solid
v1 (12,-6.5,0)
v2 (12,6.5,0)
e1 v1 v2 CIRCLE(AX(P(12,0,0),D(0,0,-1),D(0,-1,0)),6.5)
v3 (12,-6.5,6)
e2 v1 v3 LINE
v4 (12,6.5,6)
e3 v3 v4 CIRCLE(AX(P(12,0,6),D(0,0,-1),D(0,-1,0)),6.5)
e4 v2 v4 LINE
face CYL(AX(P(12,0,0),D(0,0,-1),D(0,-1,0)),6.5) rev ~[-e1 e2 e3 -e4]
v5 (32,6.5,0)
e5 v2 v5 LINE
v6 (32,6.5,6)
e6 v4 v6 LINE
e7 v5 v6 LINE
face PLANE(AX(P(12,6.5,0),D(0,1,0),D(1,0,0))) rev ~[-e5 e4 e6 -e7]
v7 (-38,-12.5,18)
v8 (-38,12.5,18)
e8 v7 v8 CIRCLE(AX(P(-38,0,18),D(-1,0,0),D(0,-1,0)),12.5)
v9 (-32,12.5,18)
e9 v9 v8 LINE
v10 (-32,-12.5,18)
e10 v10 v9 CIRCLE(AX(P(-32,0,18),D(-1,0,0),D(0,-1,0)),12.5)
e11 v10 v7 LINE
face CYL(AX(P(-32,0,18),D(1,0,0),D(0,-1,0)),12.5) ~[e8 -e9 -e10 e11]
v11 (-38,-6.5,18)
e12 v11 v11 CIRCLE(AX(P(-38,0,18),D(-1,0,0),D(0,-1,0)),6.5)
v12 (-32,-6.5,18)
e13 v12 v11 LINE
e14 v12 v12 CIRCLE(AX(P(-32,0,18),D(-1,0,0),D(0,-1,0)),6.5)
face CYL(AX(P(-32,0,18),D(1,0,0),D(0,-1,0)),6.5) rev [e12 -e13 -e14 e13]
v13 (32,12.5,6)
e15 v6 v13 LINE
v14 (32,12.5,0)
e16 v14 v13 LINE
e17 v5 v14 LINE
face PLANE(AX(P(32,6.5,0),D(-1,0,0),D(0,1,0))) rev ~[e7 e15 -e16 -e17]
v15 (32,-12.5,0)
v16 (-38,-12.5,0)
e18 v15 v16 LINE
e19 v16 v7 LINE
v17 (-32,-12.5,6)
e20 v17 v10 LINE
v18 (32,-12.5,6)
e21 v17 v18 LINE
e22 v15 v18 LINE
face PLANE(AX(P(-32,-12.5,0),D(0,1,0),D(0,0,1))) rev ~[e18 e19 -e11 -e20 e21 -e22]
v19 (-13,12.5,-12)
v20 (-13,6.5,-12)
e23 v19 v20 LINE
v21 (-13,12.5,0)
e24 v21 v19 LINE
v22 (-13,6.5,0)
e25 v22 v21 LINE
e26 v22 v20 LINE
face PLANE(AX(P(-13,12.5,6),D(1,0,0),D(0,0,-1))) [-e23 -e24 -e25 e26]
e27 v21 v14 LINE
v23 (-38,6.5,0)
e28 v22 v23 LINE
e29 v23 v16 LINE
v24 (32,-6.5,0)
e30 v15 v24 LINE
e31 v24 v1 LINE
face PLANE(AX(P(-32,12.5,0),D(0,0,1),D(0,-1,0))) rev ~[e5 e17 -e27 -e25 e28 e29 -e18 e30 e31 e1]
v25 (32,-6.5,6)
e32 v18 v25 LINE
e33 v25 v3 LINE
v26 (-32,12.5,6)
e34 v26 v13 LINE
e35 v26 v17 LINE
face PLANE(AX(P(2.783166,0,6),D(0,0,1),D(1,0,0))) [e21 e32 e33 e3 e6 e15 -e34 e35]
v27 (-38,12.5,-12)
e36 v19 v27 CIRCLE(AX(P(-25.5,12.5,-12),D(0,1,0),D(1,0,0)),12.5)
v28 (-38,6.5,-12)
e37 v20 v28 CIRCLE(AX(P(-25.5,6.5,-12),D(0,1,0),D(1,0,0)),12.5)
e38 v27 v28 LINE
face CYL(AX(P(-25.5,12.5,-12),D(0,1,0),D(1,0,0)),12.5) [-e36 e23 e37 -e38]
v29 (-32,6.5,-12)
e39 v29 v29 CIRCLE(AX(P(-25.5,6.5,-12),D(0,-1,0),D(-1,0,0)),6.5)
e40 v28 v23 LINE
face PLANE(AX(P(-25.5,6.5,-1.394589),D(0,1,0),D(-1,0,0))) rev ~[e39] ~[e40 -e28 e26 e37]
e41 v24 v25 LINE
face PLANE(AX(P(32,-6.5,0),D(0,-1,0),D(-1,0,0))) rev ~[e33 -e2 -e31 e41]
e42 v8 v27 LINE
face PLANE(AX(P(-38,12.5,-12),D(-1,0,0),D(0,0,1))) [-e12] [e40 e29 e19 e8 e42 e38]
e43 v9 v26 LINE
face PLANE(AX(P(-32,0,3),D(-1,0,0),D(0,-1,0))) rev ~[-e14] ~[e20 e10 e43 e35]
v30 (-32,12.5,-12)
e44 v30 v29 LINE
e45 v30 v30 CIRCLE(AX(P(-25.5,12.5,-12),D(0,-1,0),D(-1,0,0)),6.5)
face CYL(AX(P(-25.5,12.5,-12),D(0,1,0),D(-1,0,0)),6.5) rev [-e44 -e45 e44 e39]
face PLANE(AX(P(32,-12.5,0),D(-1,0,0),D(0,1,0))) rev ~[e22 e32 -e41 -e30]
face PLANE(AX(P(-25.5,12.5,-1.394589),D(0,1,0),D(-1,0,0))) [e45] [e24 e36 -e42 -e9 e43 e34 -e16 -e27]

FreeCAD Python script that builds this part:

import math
import FreeCAD as App
import Part
import Sketcher

V = App.Vector

doc = App.newDocument("Part")
body = doc.addObject("PartDesign::Body", "Body")

# Sketch on XY plane
sketch1 = body.newObject("Sketcher::SketchObject", "Sketch")
sketch1.AttachmentSupport = (doc.getObject("XY_Plane"), [""])
sketch1.MapMode = "FlatFace"
sketch1.addGeometry([
    Part.LineSegment(V(32, 6, 0), V(32, 12, 0)),  # 0
    Part.LineSegment(V(32, 12, 0), V(-32, 12, 0)),  # 1
    Part.LineSegment(V(-32, 12, 0), V(-32, -12, 0)),  # 2
    Part.LineSegment(V(-32, -12, 0), V(32, -12, 0)),  # 3
    Part.LineSegment(V(32, -12, 0), V(32, -6, 0)),  # 4
    Part.LineSegment(V(32, -6, 0), V(12, -6, 0)),  # 5
    Part.ArcOfCircle(Part.Circle(V(12, 0, 0), V(0, 0, 1), 6), math.radians(90), math.radians(270)),  # 6
    Part.LineSegment(V(12, 6, 0), V(32, 6, 0)),  # 7
], False)
sketch1.addConstraint([
    Sketcher.Constraint("Coincident", 0, 2, 1, 1),
    Sketcher.Constraint("Coincident", 1, 2, 2, 1),
    Sketcher.Constraint("Coincident", 2, 2, 3, 1),
    Sketcher.Constraint("Coincident", 3, 2, 4, 1),
    Sketcher.Constraint("Coincident", 4, 2, 5, 1),
    Sketcher.Constraint("Tangent", 5, 2, 6, 2),
    Sketcher.Constraint("Tangent", 6, 1, 7, 1),
    Sketcher.Constraint("Coincident", 7, 2, 0, 1),
    Sketcher.Constraint("Vertical", 0),
    Sketcher.Constraint("Horizontal", 1),
    Sketcher.Constraint("Vertical", 2),
    Sketcher.Constraint("Horizontal", 3),
    Sketcher.Constraint("Vertical", 4),
    Sketcher.Constraint("Horizontal", 5),
    Sketcher.Constraint("Horizontal", 7),
    Sketcher.Constraint("Symmetric", 0, 2, 2, 2, -1, 1),
    Sketcher.Constraint("Symmetric", 4, 2, 7, 2, -1),
    Sketcher.Constraint("Radius", 6, 6.5),
    Sketcher.Constraint("DistanceX", 1, 2, 1, 1, 64.0),
    Sketcher.Constraint("DistanceX", 5, 2, 5, 1, 20.0),
    Sketcher.Constraint("DistanceY", 0, 1, 0, 2, 6.0),
])
pad1 = body.newObject("PartDesign::Pad", "Pad")
pad1.Profile = sketch1
pad1.Length = 6

# Sketch on YZ plane
sketch2 = body.newObject("Sketcher::SketchObject", "Sketch001")
sketch2.AttachmentSupport = (doc.getObject("YZ_Plane"), [""])
sketch2.MapMode = "FlatFace"
sketch2.AttachmentOffset = App.Placement(V(0, 0, -32), App.Rotation())
sketch2.addGeometry([
    Part.LineSegment(V(12, 0, 0), V(-12, 0, 0)),  # 0
    Part.LineSegment(V(-12, 0, 0), V(-12, 18, 0)),  # 1
    Part.ArcOfCircle(Part.Circle(V(0, 18, 0), V(0, 0, 1), 12), math.radians(0), math.radians(180)),  # 2
    Part.LineSegment(V(12, 18, 0), V(12, 0, 0)),  # 3
    Part.Circle(V(0, 18, 0), V(0, 0, 1), 6),  # 4
], False)
sketch2.addConstraint([
    Sketcher.Constraint("Coincident", 0, 2, 1, 1),
    Sketcher.Constraint("Tangent", 1, 2, 2, 2),
    Sketcher.Constraint("Tangent", 2, 1, 3, 1),
    Sketcher.Constraint("Coincident", 3, 2, 0, 1),
    Sketcher.Constraint("Horizontal", 0),
    Sketcher.Constraint("Vertical", 1),
    Sketcher.Constraint("Vertical", 3),
    Sketcher.Constraint("Coincident", 4, 3, 2, 3),
    Sketcher.Constraint("Symmetric", 0, 2, 3, 2, -1, 1),
    Sketcher.Constraint("Diameter", 4, 13.0),
    Sketcher.Constraint("Radius", 2, 12.5),
    Sketcher.Constraint("DistanceY", 1, 1, 1, 2, 18.0),
])
pad2 = body.newObject("PartDesign::Pad", "Pad001")
pad2.Profile = sketch2
pad2.Length = 6
pad2.Reversed = True

# Sketch on XZ plane
sketch3 = body.newObject("Sketcher::SketchObject", "Sketch002")
sketch3.AttachmentSupport = (doc.getObject("XZ_Plane"), [""])
sketch3.MapMode = "FlatFace"
sketch3.AttachmentOffset = App.Placement(V(0, 0, -12.5), App.Rotation())
sketch3.addGeometry([
    Part.LineSegment(V(-38, -12, 0), V(-38, 6, 0)),  # 0
    Part.LineSegment(V(-38, 6, 0), V(-13, 6, 0)),  # 1
    Part.LineSegment(V(-13, 6, 0), V(-13, -12, 0)),  # 2
    Part.ArcOfCircle(Part.Circle(V(-26, -12, 0), V(0, 0, 1), 12), math.radians(180), math.radians(360)),  # 3
    Part.Circle(V(-26, -12, 0), V(0, 0, 1), 6),  # 4
], False)
sketch3.addConstraint([
    Sketcher.Constraint("Coincident", 0, 2, 1, 1),
    Sketcher.Constraint("Coincident", 1, 2, 2, 1),
    Sketcher.Constraint("Tangent", 2, 2, 3, 2),
    Sketcher.Constraint("Tangent", 3, 1, 0, 1),
    Sketcher.Constraint("Vertical", 0),
    Sketcher.Constraint("Horizontal", 1),
    Sketcher.Constraint("Vertical", 2),
    Sketcher.Constraint("Coincident", 4, 3, 3, 3),
    Sketcher.Constraint("Diameter", 4, 13.0),
    Sketcher.Constraint("Radius", 3, 12.5),
    Sketcher.Constraint("DistanceY", 0, 1, 0, 2, 18.0),
    Sketcher.Constraint("DistanceY", 3, 3, -1, 1, 12.0),
    Sketcher.Constraint("DistanceX", 0, 2, -1, 1, 38.0),
])
pad3 = body.newObject("PartDesign::Pad", "Pad002")
pad3.Profile = sketch3
pad3.Length = 6

doc.recompute()
